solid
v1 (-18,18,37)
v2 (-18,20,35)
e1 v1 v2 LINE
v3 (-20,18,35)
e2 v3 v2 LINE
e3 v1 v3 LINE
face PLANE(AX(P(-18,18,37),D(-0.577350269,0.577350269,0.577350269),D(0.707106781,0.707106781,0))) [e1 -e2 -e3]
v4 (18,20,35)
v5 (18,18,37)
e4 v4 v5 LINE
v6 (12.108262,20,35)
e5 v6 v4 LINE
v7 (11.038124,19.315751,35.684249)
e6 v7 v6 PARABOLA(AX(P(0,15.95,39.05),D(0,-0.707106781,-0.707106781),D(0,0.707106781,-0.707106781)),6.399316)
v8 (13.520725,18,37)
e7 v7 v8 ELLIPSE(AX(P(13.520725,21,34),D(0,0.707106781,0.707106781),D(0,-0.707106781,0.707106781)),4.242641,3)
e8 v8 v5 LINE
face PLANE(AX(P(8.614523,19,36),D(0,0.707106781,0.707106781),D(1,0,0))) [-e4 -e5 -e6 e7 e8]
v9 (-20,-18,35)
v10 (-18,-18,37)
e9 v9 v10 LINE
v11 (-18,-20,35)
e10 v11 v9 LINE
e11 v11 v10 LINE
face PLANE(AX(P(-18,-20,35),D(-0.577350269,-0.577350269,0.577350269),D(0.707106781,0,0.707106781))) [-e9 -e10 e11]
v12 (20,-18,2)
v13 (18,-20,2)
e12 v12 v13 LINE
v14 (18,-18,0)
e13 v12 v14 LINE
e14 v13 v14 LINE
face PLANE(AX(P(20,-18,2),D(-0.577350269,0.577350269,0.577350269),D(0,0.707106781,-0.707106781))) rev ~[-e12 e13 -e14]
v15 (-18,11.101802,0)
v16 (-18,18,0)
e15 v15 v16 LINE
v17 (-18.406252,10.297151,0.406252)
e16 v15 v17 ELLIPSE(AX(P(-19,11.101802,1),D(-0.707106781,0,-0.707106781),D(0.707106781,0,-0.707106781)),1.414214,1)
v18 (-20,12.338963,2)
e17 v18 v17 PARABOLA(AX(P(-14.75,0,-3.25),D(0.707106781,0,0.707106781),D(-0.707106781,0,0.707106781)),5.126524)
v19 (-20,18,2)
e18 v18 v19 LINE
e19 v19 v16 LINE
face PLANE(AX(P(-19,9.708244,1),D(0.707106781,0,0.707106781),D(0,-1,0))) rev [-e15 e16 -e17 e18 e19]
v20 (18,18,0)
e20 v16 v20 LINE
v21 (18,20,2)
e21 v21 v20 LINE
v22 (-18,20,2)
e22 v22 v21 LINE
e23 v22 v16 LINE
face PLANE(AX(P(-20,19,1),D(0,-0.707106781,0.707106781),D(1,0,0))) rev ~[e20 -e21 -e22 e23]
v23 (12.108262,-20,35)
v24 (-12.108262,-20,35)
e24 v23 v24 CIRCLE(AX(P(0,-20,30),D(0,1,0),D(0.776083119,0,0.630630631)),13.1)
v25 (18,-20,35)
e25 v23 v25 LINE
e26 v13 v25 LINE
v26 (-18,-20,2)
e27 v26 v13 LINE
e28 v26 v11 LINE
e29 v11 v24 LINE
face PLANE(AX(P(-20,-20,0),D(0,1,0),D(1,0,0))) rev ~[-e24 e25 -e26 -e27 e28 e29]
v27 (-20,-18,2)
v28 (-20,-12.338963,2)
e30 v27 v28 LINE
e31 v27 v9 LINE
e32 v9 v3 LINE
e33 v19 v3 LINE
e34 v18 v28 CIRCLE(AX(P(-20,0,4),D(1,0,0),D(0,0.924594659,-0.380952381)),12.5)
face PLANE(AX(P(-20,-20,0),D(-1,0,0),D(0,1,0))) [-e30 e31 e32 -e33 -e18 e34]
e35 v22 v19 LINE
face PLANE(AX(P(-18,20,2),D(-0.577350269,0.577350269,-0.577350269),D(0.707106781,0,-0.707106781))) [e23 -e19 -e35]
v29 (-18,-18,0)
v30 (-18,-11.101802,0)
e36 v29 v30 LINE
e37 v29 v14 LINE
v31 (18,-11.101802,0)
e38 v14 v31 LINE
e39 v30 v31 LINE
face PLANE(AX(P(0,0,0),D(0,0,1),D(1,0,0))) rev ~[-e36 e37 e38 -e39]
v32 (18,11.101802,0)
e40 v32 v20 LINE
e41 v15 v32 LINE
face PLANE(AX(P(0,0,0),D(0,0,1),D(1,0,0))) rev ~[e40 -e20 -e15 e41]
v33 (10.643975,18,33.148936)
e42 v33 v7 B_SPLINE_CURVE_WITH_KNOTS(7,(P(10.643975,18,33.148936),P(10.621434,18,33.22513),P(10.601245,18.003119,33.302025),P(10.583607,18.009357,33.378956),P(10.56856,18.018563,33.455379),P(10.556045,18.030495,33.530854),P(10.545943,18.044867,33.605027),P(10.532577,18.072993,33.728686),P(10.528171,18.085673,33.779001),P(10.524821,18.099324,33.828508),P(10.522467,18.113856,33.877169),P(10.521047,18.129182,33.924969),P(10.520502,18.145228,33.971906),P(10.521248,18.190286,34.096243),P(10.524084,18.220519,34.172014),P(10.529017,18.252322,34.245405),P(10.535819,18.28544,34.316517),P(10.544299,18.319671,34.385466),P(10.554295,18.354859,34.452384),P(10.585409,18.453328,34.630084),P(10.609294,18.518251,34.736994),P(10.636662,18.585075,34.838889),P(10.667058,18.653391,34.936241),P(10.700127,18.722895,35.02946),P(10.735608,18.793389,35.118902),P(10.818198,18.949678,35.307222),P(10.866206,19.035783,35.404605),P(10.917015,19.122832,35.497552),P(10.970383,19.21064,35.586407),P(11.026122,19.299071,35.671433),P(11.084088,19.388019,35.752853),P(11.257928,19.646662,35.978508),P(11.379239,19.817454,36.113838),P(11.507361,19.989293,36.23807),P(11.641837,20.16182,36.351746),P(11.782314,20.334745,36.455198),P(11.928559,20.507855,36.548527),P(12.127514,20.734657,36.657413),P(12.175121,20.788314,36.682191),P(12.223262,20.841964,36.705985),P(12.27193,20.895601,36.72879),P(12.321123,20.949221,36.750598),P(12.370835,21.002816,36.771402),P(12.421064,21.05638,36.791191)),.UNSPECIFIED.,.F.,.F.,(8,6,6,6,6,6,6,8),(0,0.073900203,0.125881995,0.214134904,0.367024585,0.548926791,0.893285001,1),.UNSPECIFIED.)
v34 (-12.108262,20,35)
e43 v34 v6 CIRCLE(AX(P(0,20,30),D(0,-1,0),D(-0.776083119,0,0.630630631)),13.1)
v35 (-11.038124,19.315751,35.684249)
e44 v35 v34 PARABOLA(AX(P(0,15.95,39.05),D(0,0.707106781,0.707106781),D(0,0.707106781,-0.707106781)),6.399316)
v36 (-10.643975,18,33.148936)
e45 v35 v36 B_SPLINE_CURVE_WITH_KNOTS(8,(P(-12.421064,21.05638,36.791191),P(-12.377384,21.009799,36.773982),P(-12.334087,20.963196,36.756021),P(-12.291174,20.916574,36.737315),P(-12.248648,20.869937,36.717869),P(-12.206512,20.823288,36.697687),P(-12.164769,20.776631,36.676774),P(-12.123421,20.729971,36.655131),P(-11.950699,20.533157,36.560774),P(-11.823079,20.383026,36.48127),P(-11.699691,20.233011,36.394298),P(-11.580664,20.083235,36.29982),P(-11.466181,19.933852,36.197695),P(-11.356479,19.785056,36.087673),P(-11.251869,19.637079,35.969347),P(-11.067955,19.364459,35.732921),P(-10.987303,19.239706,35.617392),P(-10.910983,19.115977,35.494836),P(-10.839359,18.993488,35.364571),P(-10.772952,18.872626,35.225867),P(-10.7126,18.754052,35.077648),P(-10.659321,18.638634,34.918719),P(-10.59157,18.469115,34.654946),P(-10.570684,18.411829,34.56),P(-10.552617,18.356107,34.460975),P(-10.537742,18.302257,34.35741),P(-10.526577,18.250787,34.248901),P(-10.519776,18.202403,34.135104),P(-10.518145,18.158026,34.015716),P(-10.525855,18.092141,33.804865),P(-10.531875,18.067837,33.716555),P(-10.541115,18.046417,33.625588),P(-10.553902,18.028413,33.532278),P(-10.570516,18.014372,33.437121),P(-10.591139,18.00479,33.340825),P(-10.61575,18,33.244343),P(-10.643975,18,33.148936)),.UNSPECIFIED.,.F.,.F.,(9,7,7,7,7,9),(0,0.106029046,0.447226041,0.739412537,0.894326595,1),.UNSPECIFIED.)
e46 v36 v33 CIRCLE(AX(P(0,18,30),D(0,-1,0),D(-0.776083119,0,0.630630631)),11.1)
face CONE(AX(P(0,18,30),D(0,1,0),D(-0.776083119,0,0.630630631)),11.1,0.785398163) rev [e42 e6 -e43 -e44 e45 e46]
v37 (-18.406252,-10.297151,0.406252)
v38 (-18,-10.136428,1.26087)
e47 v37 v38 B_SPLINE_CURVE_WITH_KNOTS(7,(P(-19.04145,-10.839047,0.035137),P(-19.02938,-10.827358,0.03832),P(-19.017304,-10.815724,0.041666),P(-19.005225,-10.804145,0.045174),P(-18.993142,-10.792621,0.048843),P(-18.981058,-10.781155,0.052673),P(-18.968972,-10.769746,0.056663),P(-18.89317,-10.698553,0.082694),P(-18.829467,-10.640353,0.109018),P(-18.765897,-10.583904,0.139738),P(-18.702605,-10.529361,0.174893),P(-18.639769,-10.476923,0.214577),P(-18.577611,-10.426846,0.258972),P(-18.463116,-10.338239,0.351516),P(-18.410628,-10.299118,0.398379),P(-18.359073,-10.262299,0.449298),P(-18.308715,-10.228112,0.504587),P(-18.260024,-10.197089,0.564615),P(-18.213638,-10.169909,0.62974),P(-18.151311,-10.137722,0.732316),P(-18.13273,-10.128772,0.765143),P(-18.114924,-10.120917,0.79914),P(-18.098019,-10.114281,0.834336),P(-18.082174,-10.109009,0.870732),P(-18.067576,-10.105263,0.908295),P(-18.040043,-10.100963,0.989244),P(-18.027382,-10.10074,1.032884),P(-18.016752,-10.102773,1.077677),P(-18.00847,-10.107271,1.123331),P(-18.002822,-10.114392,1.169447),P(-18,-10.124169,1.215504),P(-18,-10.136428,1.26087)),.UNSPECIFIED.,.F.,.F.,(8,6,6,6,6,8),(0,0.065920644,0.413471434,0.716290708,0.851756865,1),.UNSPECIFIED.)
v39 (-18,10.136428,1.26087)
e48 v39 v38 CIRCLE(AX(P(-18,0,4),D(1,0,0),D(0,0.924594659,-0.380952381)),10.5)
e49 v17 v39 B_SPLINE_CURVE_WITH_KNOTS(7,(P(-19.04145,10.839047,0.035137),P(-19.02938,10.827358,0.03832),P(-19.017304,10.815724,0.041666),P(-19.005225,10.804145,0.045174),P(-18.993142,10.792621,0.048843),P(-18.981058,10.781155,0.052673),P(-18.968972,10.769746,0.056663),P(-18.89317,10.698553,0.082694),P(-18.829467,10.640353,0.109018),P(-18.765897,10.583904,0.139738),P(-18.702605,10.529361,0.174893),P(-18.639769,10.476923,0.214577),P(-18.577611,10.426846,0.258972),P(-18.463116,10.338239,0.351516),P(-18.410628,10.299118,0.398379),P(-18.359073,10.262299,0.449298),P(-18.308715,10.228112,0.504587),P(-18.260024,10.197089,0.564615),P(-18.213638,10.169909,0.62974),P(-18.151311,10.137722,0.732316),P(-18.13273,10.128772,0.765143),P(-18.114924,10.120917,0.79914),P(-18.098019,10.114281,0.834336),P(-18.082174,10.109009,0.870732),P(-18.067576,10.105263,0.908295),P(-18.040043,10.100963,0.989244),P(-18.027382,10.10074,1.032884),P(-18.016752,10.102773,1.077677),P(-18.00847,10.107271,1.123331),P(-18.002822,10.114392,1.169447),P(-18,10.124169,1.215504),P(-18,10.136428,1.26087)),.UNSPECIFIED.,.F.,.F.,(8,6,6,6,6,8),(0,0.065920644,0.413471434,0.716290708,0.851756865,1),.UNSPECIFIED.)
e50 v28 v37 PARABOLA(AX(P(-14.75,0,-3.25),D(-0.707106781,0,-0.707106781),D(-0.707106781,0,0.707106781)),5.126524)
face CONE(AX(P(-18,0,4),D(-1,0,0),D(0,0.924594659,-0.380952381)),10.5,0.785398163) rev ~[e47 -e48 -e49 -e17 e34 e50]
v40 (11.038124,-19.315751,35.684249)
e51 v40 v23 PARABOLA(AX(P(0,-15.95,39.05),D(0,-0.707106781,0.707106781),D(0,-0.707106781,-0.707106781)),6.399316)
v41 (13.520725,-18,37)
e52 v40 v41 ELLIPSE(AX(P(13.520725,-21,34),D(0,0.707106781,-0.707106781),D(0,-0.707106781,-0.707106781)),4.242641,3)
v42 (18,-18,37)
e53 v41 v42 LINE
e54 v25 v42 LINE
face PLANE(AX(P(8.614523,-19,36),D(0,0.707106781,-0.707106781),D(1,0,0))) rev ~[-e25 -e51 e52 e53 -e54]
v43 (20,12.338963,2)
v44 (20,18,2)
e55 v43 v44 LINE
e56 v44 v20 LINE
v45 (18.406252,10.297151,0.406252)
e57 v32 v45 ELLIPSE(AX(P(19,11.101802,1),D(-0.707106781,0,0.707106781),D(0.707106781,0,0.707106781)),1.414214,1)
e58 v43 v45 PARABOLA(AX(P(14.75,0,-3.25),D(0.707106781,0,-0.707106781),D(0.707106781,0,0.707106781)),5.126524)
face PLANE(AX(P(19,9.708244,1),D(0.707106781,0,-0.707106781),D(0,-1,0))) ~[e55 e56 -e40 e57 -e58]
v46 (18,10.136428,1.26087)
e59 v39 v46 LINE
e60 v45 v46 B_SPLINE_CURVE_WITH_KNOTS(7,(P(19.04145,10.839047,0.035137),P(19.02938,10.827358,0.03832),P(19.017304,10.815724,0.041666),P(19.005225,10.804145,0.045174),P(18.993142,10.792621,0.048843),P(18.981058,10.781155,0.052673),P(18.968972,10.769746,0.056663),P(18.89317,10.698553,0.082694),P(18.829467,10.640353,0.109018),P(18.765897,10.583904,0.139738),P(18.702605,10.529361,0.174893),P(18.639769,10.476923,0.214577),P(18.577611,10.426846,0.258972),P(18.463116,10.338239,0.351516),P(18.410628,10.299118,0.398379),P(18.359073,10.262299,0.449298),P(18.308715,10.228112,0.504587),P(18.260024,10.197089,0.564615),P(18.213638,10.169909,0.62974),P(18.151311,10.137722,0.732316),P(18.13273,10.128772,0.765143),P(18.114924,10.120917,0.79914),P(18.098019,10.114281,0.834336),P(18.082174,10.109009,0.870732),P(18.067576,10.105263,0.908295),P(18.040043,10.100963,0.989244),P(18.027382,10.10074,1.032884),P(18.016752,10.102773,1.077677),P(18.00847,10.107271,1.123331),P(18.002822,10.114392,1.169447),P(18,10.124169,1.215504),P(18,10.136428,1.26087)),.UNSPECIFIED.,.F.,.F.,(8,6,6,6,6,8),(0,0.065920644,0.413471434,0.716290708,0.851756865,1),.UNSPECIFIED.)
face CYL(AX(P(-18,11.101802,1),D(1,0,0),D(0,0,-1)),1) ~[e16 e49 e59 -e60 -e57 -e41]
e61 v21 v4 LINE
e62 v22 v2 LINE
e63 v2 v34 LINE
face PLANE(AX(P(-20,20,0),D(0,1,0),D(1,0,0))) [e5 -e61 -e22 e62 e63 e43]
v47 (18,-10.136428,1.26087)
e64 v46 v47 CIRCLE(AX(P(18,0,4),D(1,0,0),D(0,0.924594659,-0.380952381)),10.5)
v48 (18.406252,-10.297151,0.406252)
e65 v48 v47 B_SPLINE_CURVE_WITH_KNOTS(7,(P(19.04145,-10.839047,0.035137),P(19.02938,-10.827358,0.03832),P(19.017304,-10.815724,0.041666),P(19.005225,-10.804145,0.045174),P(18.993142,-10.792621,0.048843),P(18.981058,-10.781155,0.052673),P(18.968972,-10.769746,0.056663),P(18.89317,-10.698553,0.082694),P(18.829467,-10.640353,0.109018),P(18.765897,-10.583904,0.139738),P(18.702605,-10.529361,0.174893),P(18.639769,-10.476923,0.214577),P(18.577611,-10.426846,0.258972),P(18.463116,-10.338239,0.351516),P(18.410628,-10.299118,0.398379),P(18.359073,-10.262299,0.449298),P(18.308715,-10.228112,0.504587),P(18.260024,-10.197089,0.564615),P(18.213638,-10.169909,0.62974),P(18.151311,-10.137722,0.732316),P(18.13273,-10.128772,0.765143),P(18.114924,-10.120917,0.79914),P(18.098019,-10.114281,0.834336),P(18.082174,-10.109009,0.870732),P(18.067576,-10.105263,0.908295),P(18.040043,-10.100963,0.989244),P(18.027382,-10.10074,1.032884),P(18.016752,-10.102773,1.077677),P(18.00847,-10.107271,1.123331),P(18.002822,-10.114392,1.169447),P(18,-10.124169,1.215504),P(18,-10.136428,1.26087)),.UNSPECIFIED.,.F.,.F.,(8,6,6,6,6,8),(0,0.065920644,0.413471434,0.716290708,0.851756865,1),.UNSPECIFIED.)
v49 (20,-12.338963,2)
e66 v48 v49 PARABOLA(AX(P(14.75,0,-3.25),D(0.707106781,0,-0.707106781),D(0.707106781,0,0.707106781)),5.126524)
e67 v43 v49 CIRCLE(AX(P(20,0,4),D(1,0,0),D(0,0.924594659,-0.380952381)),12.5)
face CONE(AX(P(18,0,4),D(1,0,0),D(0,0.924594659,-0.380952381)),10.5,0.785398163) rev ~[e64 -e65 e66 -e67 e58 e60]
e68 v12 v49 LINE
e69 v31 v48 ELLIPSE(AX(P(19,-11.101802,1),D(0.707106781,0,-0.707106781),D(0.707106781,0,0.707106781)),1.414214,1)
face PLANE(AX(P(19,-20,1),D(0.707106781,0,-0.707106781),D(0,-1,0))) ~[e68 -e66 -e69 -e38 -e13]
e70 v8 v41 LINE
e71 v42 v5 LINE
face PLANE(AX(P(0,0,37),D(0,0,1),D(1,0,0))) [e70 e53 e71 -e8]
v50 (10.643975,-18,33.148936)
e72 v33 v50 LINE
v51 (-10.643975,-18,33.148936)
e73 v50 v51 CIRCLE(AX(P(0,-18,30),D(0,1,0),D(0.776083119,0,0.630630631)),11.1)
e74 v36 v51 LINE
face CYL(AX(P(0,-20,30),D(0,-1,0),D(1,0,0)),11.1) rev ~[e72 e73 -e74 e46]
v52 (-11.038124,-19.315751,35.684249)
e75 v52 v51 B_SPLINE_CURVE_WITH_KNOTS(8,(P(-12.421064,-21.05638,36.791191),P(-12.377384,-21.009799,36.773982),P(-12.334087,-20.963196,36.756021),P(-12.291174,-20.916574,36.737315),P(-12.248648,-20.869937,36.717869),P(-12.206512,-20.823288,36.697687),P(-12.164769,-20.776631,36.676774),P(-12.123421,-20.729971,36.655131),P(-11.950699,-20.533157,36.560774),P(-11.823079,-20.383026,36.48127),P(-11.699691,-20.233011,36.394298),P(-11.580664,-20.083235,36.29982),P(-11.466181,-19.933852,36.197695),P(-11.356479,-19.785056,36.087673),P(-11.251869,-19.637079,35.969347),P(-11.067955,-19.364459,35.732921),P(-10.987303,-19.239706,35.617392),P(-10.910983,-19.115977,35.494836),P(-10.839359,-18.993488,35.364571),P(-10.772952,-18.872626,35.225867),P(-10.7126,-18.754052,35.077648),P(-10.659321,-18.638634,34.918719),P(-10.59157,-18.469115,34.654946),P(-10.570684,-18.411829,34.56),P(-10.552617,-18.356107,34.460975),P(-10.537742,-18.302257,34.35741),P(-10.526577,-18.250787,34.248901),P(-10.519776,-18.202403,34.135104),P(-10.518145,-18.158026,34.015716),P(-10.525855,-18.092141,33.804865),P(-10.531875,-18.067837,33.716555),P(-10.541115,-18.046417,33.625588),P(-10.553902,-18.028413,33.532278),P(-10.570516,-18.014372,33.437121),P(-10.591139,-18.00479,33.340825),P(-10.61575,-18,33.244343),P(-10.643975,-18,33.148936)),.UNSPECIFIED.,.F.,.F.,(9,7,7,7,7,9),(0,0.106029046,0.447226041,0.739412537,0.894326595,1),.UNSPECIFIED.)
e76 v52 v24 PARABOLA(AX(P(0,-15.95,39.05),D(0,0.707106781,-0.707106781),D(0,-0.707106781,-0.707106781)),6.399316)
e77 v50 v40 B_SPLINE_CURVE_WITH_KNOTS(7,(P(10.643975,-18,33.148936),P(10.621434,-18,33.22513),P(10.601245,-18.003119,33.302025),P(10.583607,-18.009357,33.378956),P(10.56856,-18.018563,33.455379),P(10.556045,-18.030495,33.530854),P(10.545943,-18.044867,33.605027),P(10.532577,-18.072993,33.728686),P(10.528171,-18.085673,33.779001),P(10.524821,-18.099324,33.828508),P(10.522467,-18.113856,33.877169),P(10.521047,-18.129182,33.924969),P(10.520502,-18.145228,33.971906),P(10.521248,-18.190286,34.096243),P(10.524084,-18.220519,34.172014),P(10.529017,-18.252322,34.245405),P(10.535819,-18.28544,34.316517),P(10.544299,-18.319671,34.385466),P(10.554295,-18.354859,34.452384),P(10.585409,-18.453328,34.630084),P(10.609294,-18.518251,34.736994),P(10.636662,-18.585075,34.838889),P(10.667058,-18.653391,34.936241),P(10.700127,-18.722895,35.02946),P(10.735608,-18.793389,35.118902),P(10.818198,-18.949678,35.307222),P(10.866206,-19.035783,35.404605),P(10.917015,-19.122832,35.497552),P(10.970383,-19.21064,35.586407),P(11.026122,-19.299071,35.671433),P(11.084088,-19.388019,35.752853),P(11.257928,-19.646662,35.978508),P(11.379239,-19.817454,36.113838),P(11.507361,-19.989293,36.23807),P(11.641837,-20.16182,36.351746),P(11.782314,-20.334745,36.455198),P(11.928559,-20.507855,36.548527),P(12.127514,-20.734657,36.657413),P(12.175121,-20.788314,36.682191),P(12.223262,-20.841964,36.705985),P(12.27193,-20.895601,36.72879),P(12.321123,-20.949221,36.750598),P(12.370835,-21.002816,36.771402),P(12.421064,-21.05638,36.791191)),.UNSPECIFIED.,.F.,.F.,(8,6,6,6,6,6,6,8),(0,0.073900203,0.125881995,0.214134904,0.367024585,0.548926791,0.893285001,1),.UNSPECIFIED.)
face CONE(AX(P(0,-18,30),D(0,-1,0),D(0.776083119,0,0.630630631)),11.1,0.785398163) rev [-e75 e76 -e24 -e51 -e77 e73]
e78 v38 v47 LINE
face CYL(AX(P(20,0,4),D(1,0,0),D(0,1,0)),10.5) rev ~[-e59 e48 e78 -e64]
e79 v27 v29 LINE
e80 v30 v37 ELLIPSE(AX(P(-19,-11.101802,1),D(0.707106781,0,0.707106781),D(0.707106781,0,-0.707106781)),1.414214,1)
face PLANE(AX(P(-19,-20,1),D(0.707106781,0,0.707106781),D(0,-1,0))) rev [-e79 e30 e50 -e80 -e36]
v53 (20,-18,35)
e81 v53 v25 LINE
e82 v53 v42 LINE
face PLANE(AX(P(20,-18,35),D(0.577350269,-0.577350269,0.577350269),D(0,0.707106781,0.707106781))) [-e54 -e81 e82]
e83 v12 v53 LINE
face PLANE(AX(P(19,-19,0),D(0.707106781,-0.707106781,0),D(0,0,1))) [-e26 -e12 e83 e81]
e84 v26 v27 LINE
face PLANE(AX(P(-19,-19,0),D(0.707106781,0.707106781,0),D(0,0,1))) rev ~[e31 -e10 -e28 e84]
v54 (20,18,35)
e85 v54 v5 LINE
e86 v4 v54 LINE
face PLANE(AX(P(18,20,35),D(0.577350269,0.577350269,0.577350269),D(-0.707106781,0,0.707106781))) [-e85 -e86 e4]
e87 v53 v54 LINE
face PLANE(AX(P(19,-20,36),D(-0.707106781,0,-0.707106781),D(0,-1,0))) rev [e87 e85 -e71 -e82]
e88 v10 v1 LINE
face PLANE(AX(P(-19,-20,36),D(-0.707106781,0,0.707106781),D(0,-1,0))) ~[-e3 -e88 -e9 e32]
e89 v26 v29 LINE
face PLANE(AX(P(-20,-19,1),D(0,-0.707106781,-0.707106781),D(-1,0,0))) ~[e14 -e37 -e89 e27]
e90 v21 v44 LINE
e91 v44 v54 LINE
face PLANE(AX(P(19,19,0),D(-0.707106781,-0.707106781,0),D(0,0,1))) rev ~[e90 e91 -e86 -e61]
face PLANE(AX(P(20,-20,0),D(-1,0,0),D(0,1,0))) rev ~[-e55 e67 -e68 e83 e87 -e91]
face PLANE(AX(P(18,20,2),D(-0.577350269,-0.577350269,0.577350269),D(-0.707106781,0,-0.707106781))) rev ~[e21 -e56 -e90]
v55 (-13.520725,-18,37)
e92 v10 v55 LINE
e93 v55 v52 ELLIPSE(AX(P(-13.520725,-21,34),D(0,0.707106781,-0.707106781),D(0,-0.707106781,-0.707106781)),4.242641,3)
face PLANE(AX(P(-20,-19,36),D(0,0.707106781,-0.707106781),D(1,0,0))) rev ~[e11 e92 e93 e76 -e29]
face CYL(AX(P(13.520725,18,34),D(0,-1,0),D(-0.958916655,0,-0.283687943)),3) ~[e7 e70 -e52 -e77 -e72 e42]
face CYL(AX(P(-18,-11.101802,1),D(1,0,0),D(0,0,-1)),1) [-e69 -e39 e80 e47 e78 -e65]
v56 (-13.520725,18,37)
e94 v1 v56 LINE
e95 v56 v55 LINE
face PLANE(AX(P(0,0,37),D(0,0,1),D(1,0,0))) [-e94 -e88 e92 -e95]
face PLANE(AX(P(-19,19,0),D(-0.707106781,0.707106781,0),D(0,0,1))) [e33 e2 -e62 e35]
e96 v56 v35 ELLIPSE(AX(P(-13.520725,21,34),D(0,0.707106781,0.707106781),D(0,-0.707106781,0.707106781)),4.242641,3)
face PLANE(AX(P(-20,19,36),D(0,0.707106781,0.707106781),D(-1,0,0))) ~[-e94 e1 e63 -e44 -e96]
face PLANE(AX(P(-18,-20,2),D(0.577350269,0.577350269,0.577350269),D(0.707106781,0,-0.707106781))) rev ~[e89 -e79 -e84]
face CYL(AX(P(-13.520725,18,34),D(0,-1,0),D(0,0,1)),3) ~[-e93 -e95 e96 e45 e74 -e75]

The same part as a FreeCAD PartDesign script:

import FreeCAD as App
import Part
import Sketcher
from FreeCAD import Vector


def edges_at(feature, points):
    """Names of the edges that pass closest to the given points."""
    edges = feature.Shape.Edges
    near = lambda p: min(range(len(edges)), key=lambda i: edges[i].distToShape(Part.Vertex(*p))[0])
    return sorted({f"Edge{near(p) + 1}" for p in points})

doc = App.newDocument("Part")
params = doc.addObject("Spreadsheet::Sheet", "Params")
for row, (alias, value) in enumerate([
    ("sketch1_width", "40 mm"),
    ("pad1_length", "37 mm"),
    ("sketch2_diameter", "21 mm"),
    ("sketch3_diameter", "22.2 mm"),
    ("chamfer_size", "2 mm"),
    ("fillet_radius", "3 mm"),
    ("fillet2_radius", "1 mm"),
], start=1):
    params.set(f"A{row}", alias)
    params.set(f"B{row}", "=" + value)
    params.setAlias(f"B{row}", alias)

body = doc.addObject("PartDesign::Body", "Body")

# Sketch on XY plane
sketch1 = body.newObject("Sketcher::SketchObject", "Sketch")
sketch1.AttachmentSupport = (doc.getObject("XY_Plane"), [""])
sketch1.MapMode = "FlatFace"
sketch1.addGeometry(Part.LineSegment(Vector(-20, 20, 0), Vector(-20, -20, 0)), False)
sketch1.addGeometry(Part.LineSegment(Vector(-20, -20, 0), Vector(20, -20, 0)), False)
sketch1.addGeometry(Part.LineSegment(Vector(20, -20, 0), Vector(20, 20, 0)), False)
sketch1.addGeometry(Part.LineSegment(Vector(20, 20, 0), Vector(-20, 20, 0)), False)
sketch1.addConstraint(Sketcher.Constraint("Coincident", 0, 2, 1, 1))
sketch1.addConstraint(Sketcher.Constraint("Coincident", 1, 2, 2, 1))
sketch1.addConstraint(Sketcher.Constraint("Coincident", 2, 2, 3, 1))
sketch1.addConstraint(Sketcher.Constraint("Coincident", 3, 2, 0, 1))
sketch1.addConstraint(Sketcher.Constraint("Vertical", 0))
sketch1.addConstraint(Sketcher.Constraint("Horizontal", 1))
sketch1.addConstraint(Sketcher.Constraint("Vertical", 2))
sketch1.addConstraint(Sketcher.Constraint("Horizontal", 3))
sketch1.addConstraint(Sketcher.Constraint("Symmetric", 0, 2, 2, 2, -1, 1))
sketch1.addConstraint(Sketcher.Constraint("Equal", 3, 0))
sketch1.addConstraint(Sketcher.Constraint("DistanceX", 1, 1, 1, 2, 40.0))
sketch1.setExpression("Constraints[10]", "Params.sketch1_width")
pad1 = body.newObject("PartDesign::Pad", "Pad")
pad1.Profile = sketch1
pad1.setExpression("Length", "Params.pad1_length")

# Sketch on YZ plane
sketch2 = body.newObject("Sketcher::SketchObject", "Sketch001")
sketch2.AttachmentSupport = (doc.getObject("YZ_Plane"), [""])
sketch2.MapMode = "FlatFace"
sketch2.AttachmentOffset = App.Placement(Vector(0, 0, 20), App.Rotation())
sketch2.addGeometry(Part.Circle(Vector(0, 4, 0), Vector(0, 0, 1), 10), False)
sketch2.addConstraint(Sketcher.Constraint("PointOnObject", 0, 3, -2))
sketch2.addConstraint(Sketcher.Constraint("Diameter", 0, 21.0))
sketch2.addConstraint(Sketcher.Constraint("DistanceY", -1, 1, 0, 3, 4.0))
sketch2.setExpression("Constraints[1]", "Params.sketch2_diameter")
pocket1 = body.newObject("PartDesign::Pocket", "Pocket")
pocket1.Profile = sketch2
pocket1.Type = "ThroughAll"

# Sketch on XZ plane
sketch3 = body.newObject("Sketcher::SketchObject", "Sketch002")
sketch3.AttachmentSupport = (doc.getObject("XZ_Plane"), [""])
sketch3.MapMode = "FlatFace"
sketch3.AttachmentOffset = App.Placement(Vector(0, 0, 20), App.Rotation())
sketch3.addGeometry(Part.Circle(Vector(0, 30, 0), Vector(0, 0, 1), 11), False)
sketch3.addConstraint(Sketcher.Constraint("PointOnObject", 0, 3, -2))
sketch3.addConstraint(Sketcher.Constraint("Diameter", 0, 22.2))
sketch3.addConstraint(Sketcher.Constraint("DistanceY", -1, 1, 0, 3, 30.0))
sketch3.setExpression("Constraints[1]", "Params.sketch3_diameter")
pocket2 = body.newObject("PartDesign::Pocket", "Pocket001")
pocket2.Profile = sketch3
pocket2.Type = "ThroughAll"
doc.recompute()

chamfer = body.newObject("PartDesign::Chamfer", "Chamfer")
chamfer.Base = (pocket2, edges_at(pocket2, [
    (-20, -14.854, 0),
    (-20, 0, 14.5),
    (-20, 0, 14.5),
    (-20, 14.854, 0),
    (-20, 20, 18.5),
    (-20, 0, 37),
    (-20, -20, 18.5),
    (0, -20, 0),
    (-14.307, -20, 37),
    (0, -20, 18.9),
    (0, -20, 18.9),
    (14.307, -20, 37),
    (20, -20, 18.5),
    (20, 14.854, 0),
    (20, 0, 14.5),
    (20, 0, 14.5),
    (20, -14.854, 0),
    (20, 0, 37),
    (20, 20, 18.5),
    (0, 20, 0),
    (14.307, 20, 37),
    (0, 20, 18.9),
    (0, 20, 18.9),
    (-14.307, 20, 37),
]))
chamfer.setExpression("Size", "Params.chamfer_size")
doc.recompute()

fillet = body.newObject("PartDesign::Fillet", "Fillet")
fillet.Base = (chamfer, edges_at(chamfer, [(-8.615, 0, 37), (8.615, 0, 37)]))
fillet.setExpression("Radius", "Params.fillet_radius")
doc.recompute()

fillet2 = body.newObject("PartDesign::Fillet", "Fillet001")
fillet2.Base = (fillet, edges_at(fillet, [(0, 9.708, 0), (0, -9.708, 0)]))
fillet2.setExpression("Radius", "Params.fillet2_radius")

doc.recompute()
